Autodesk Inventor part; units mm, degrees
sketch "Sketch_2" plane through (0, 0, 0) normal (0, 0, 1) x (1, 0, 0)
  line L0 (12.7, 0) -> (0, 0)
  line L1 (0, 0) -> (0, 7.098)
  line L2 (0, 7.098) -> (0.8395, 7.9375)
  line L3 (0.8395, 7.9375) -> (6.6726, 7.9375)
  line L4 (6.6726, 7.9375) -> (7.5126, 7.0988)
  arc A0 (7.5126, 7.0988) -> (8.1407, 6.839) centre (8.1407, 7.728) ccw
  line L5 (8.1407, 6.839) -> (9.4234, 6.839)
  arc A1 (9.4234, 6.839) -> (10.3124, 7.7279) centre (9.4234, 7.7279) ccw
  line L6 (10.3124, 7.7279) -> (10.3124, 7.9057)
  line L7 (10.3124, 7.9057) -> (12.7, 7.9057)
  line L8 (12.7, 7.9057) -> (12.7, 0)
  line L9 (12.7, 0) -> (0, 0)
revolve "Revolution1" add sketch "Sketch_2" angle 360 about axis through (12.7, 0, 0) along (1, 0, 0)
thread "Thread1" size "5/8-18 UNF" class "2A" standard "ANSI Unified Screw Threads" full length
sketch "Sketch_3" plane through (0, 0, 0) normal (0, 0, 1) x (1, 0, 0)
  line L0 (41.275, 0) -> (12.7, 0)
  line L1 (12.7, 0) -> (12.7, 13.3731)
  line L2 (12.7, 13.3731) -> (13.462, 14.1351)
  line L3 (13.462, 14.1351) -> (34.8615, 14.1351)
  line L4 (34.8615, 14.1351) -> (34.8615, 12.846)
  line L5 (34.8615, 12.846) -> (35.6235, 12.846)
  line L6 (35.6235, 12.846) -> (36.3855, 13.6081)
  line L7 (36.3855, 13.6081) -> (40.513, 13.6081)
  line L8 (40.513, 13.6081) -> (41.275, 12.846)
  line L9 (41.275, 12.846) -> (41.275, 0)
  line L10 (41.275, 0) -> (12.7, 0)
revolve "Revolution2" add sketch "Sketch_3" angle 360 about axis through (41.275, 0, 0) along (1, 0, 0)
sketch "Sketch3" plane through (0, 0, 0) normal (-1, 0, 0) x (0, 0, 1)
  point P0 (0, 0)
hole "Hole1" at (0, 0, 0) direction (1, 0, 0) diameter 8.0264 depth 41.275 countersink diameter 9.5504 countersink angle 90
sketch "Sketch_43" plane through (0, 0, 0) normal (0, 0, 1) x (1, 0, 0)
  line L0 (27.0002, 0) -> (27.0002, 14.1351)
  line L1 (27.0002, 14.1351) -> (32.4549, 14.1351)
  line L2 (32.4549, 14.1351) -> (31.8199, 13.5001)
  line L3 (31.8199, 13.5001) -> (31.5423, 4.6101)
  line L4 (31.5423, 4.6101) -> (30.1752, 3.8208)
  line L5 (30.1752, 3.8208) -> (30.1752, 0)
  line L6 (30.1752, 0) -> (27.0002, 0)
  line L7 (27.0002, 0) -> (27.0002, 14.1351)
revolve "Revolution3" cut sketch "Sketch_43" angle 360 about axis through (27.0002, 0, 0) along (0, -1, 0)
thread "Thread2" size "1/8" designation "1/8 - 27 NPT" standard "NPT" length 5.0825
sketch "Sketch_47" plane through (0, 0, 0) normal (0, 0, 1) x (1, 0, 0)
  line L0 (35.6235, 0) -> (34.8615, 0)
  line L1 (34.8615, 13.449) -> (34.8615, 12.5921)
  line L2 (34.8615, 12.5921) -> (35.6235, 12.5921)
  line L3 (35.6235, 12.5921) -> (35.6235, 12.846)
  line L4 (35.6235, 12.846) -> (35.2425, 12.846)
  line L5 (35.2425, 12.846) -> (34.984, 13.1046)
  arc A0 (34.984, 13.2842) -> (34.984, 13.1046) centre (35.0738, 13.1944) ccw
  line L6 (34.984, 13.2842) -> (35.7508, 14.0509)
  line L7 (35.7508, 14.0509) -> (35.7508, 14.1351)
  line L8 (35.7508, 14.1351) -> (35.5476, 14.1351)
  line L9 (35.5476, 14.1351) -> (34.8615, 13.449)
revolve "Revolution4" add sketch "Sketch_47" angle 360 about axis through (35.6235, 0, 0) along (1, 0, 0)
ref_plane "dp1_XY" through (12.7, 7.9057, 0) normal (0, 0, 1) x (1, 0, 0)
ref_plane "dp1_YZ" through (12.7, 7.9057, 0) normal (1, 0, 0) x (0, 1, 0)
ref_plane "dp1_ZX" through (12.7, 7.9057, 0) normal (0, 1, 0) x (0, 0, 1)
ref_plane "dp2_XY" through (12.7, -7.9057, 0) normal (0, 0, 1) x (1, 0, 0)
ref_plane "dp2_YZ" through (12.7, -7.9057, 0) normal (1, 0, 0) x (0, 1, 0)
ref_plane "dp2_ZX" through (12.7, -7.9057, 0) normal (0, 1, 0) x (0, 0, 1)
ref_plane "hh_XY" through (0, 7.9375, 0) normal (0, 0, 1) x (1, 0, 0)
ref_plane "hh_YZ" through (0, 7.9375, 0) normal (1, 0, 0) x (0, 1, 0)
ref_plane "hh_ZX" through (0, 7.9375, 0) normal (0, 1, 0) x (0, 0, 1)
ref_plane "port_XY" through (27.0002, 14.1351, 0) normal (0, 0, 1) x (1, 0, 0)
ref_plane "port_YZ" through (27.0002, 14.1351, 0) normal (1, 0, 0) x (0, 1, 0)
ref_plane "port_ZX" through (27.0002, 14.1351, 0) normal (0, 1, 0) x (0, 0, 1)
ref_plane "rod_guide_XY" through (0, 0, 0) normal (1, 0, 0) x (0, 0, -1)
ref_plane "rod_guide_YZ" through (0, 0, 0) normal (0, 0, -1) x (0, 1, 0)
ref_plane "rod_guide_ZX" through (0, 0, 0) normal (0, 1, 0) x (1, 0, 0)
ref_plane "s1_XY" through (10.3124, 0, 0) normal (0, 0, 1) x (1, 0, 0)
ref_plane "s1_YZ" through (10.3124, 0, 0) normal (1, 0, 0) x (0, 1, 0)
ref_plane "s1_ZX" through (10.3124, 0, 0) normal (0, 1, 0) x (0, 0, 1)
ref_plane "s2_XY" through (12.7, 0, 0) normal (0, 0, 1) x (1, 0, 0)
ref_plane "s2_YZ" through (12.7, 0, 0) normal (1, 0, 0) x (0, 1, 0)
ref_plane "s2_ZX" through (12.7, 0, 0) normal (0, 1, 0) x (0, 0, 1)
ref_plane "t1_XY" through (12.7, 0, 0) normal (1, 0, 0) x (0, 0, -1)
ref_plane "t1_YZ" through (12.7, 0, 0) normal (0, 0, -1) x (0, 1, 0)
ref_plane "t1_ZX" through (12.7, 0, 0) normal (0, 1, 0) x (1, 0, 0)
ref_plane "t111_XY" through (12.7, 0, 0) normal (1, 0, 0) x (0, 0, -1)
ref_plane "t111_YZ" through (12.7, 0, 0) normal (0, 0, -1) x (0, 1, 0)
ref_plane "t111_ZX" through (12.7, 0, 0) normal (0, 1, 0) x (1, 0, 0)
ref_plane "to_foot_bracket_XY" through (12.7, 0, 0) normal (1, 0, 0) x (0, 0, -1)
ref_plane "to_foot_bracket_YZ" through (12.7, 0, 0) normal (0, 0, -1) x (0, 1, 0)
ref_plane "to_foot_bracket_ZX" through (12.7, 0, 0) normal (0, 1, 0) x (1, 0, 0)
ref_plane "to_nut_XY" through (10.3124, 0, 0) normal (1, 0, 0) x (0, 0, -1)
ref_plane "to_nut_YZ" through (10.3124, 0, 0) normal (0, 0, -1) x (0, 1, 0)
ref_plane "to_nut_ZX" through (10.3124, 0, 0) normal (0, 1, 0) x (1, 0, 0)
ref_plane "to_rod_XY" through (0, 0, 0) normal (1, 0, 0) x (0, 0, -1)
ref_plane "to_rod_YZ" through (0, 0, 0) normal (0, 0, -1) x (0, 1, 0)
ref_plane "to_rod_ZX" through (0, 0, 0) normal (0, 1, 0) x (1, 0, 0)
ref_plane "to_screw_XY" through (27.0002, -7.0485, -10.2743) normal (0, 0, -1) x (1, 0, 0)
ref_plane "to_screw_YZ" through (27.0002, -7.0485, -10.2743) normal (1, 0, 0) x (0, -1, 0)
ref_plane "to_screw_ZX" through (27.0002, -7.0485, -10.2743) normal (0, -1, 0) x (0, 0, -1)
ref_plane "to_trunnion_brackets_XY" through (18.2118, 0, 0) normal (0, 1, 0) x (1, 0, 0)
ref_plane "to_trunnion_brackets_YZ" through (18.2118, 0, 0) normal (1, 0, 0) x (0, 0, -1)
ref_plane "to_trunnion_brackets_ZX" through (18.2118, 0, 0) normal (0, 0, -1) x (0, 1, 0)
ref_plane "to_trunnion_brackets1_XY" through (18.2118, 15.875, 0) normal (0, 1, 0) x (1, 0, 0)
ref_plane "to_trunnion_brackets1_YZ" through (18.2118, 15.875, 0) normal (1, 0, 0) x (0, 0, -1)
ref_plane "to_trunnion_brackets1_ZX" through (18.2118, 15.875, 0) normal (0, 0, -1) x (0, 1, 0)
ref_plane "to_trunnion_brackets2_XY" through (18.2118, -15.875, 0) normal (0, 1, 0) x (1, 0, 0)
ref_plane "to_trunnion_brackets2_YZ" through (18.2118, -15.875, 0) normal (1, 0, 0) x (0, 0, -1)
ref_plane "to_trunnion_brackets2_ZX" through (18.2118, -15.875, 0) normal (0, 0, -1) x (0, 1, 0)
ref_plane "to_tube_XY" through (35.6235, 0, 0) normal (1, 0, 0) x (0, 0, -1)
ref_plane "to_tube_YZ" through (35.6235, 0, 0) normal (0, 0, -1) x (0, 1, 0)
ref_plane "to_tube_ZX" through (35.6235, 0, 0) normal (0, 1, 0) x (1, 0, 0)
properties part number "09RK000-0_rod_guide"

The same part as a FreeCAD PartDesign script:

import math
import FreeCAD as App
import Part
import Sketcher

V = App.Vector
Q = App.Units.Quantity


def add_polygon(sketch, points):
    """Adds a closed chain of lines whose ends are joined by coincident constraints."""
    first, n = sketch.GeometryCount, len(points)
    for a, b in zip(points, points[1:] + points[:1]):
        sketch.addGeometry(Part.LineSegment(App.Vector(*a, 0), App.Vector(*b, 0)), False)
    for i in range(n):
        sketch.addConstraint(Sketcher.Constraint("Coincident", first + i, 2, first + (i + 1) % n, 1))

doc = App.newDocument("Part")
body = doc.addObject("PartDesign::Body", "Body")

# Sketch on XY plane
sketch1 = body.newObject("Sketcher::SketchObject", "Sketch")
sketch1.AttachmentSupport = (doc.getObject("XY_Plane"), [""])
sketch1.MapMode = "FlatFace"
sketch1.addGeometry([
    Part.LineSegment(V(0, 0, 0), V(12.7, 0, 0)),  # 0
    Part.LineSegment(V(12.7, 0, 0), V(12.7, 7.91, 0)),  # 1
    Part.LineSegment(V(12.7, 7.91, 0), V(10.31, 7.91, 0)),  # 2
    Part.LineSegment(V(10.31, 7.91, 0), V(10.31, 7.73, 0)),  # 3
    Part.ArcOfCircle(Part.Circle(V(9.42, 7.73, 0), V(0, 0, 1), 0.89), math.radians(-90), math.radians(0)),  # 4
    Part.LineSegment(V(9.42, 6.84, 0), V(8.14, 6.84, 0)),  # 5
    Part.ArcOfCircle(Part.Circle(V(8.14, 7.73, 0), V(0, 0, 1), 0.89), math.radians(-135), math.radians(-90)),  # 6
    Part.LineSegment(V(7.51, 7.1, 0), V(6.67, 7.94, 0)),  # 7
    Part.LineSegment(V(6.67, 7.94, 0), V(0.84, 7.94, 0)),  # 8
    Part.LineSegment(V(0.84, 7.94, 0), V(0, 7.1, 0)),  # 9
    Part.LineSegment(V(0, 7.1, 0), V(0, 0, 0)),  # 10
], False)
sketch1.addConstraint([
    Sketcher.Constraint("Coincident", 0, 2, 1, 1),
    Sketcher.Constraint("Coincident", 1, 2, 2, 1),
    Sketcher.Constraint("Coincident", 2, 2, 3, 1),
    Sketcher.Constraint("Tangent", 3, 2, 4, 2),
    Sketcher.Constraint("Tangent", 4, 1, 5, 1),
    Sketcher.Constraint("Tangent", 5, 2, 6, 2),
    Sketcher.Constraint("Tangent", 6, 1, 7, 1),
    Sketcher.Constraint("Coincident", 7, 2, 8, 1),
    Sketcher.Constraint("Coincident", 8, 2, 9, 1),
    Sketcher.Constraint("Coincident", 9, 2, 10, 1),
    Sketcher.Constraint("Coincident", 10, 2, 0, 1),
    Sketcher.Constraint("Horizontal", 0),
    Sketcher.Constraint("Vertical", 1),
    Sketcher.Constraint("Horizontal", 2),
    Sketcher.Constraint("Vertical", 3),
    Sketcher.Constraint("Horizontal", 5),
    Sketcher.Constraint("Horizontal", 8),
    Sketcher.Constraint("Vertical", 10),
    Sketcher.Constraint("Coincident", 10, 2, -1, 1),
    Sketcher.Constraint("Equal", 4, 6),
    Sketcher.Constraint("DistanceX", 0, 1, 0, 2, Q("0.5 in")),
    Sketcher.Constraint("Angle", 9, Q("-135 deg")),
    Sketcher.Constraint("Radius", 4, Q("0.035 in")),
    Sketcher.Constraint("DistanceX", 2, 2, 2, 1, Q("0.094 in")),
    Sketcher.Constraint("DistanceY", 3, 2, 3, 1, Q("0.007 in")),
    Sketcher.Constraint("DistanceX", 5, 2, 5, 1, Q("0.0505 in")),
    Sketcher.Constraint("DistanceY", -1, 1, 7, 2, Q("0.3125 in")),
    Sketcher.Constraint("DistanceX", 8, 2, 8, 1, Q("5.833 mm")),
    Sketcher.Constraint("DistanceY", 1, 1, 1, 2, Q("7.9057 mm")),
    Sketcher.Constraint("DistanceY", 10, 2, 10, 1, Q("7.098 mm")),
])
revolution = body.newObject("PartDesign::Revolution", "Revolution")
revolution.Profile = sketch1
revolution.ReferenceAxis = (sketch1, ["H_Axis"])
revolution.Angle = 360

# Sketch on XY plane
sketch2 = body.newObject("Sketcher::SketchObject", "Sketch001")
sketch2.AttachmentSupport = (doc.getObject("XY_Plane"), [""])
sketch2.MapMode = "FlatFace"
add_polygon(sketch2, [(12.7, 0), (41.3, 0), (41.3, 12.8), (40.5, 13.6), (36.4, 13.6), (35.6, 12.8), (34.9, 12.8), (34.9, 14.1), (13.5, 14.1), (12.7, 13.4)])  # lines 0-9
sketch2.addConstraint([
    Sketcher.Constraint("Horizontal", 0),
    Sketcher.Constraint("Vertical", 1),
    Sketcher.Constraint("Horizontal", 3),
    Sketcher.Constraint("Horizontal", 5),
    Sketcher.Constraint("Vertical", 6),
    Sketcher.Constraint("Horizontal", 7),
    Sketcher.Constraint("Vertical", 9),
    Sketcher.Constraint("PointOnObject", 0, 2, -1),
    Sketcher.Constraint("Perpendicular", 2, 4),
    Sketcher.Constraint("Parallel", 4, 8),
    Sketcher.Constraint("Horizontal", 1, 2, 4, 2),
    Sketcher.Constraint("Equal", 2, 4),
    Sketcher.Constraint("Equal", 4, 8),
    Sketcher.Constraint("DistanceX", 5, 2, 5, 1, Q("0.03 in")),
    Sketcher.Constraint("DistanceX", -1, 1, 8, 2, Q("0.5 in")),
    Sketcher.Constraint("DistanceX", 0, 1, 0, 2, Q("1.125 in")),
    Sketcher.Constraint("DistanceX", -1, 1, 7, 2, Q("0.53 in")),
    Sketcher.Constraint("DistanceX", 3, 2, 3, 1, Q("0.1625 in")),
    Sketcher.Constraint("DistanceY", 9, 2, 9, 1, Q("0.5265 in")),
    Sketcher.Constraint("DistanceY", 1, 1, 1, 2, Q("12.846 mm")),
])
revolution2 = body.newObject("PartDesign::Revolution", "Revolution001")
revolution2.Profile = sketch2
revolution2.ReferenceAxis = (sketch2, ["H_Axis"])
revolution2.Angle = 360

# Sketch on YZ plane
sketch3 = body.newObject("Sketcher::SketchObject", "Sketch002")
sketch3.AttachmentSupport = (doc.getObject("YZ_Plane"), [""])
sketch3.MapMode = "FlatFace"
sketch3.addGeometry(Part.Circle(V(0, 0, 0), V(0, 0, 1), 4), False)
sketch3.addConstraint([
    Sketcher.Constraint("Coincident", 0, 3, -1, 1),
    Sketcher.Constraint("Diameter", 0, Q("0.316 in")),
])
doc.recompute()
hole = body.newObject("PartDesign::Hole", "Hole")
hole.Profile = sketch3
hole.ThreadType = "None"
hole.Diameter = Q("0.316 in")
hole.DepthType = "Dimension"
hole.Depth = Q("1.625 in")
hole.DrillPoint = "Flat"
hole.HoleCutType = "Countersink"
hole.HoleCutDiameter = Q("0.376 in")
hole.HoleCutCountersinkAngle = 90
hole.Reversed = True

# Sketch on XY plane
sketch4 = body.newObject("Sketcher::SketchObject", "Sketch003")
sketch4.AttachmentSupport = (doc.getObject("XY_Plane"), [""])
sketch4.MapMode = "FlatFace"
add_polygon(sketch4, [(27, 14.1), (27, 0), (30.2, 0), (30.2, 3.8), (31.5, 4.6), (31.8, 13.5), (32.5, 14.1)])  # lines 0-6
sketch4.addGeometry(Part.LineSegment(V(27, 14.1, 0), V(27, 0, 0)), True)  # axis
sketch4.addConstraint([
    Sketcher.Constraint("Vertical", 0),
    Sketcher.Constraint("Horizontal", 1),
    Sketcher.Constraint("Vertical", 2),
    Sketcher.Constraint("Horizontal", 6),
    Sketcher.Constraint("Vertical", 7),
    Sketcher.Constraint("Coincident", 7, 1, 6, 2),
    Sketcher.Constraint("PointOnObject", 0, 2, -1),
    Sketcher.Constraint("PointOnObject", 7, 2, -1),
    Sketcher.Constraint("Angle", 3, Q("30.0001 deg")),
    Sketcher.Constraint("Angle", 5, Q("45 deg")),
    Sketcher.Constraint("DistanceX", 1, 1, 1, 2, Q("0.125 in")),
    Sketcher.Constraint("DistanceY", 3, 2, 4, 2, Q("0.35 in")),
    Sketcher.Constraint("DistanceY", 0, 2, 0, 1, Q("0.5565 in")),
    Sketcher.Constraint("DistanceX", -1, 1, 0, 2, Q("1.063 in")),
    Sketcher.Constraint("DistanceX", 4, 2, 5, 2, Q("0.025 in")),
    Sketcher.Constraint("DistanceX", 6, 2, 6, 1, Q("5.4547 mm")),
    Sketcher.Constraint("DistanceY", 2, 1, 2, 2, Q("3.8208 mm")),
])
groove = body.newObject("PartDesign::Groove", "Groove")
groove.Profile = sketch4
groove.ReferenceAxis = (sketch4, ["Axis0"])
groove.Angle = 360

# Sketch on XY plane
sketch5 = body.newObject("Sketcher::SketchObject", "Sketch004")
sketch5.AttachmentSupport = (doc.getObject("XY_Plane"), [""])
sketch5.MapMode = "FlatFace"
sketch5.addGeometry([
    Part.LineSegment(V(35.55, 14.14, 0), V(34.86, 13.45, 0)),  # 0
    Part.LineSegment(V(34.86, 13.45, 0), V(34.86, 12.59, 0)),  # 1
    Part.LineSegment(V(34.86, 12.59, 0), V(35.62, 12.59, 0)),  # 2
    Part.LineSegment(V(35.62, 12.59, 0), V(35.62, 12.85, 0)),  # 3
    Part.LineSegment(V(35.62, 12.85, 0), V(35.24, 12.85, 0)),  # 4
    Part.LineSegment(V(35.24, 12.85, 0), V(34.98, 13.1, 0)),  # 5
    Part.ArcOfCircle(Part.Circle(V(35.07, 13.19, 0), V(0, 0, 1), 0.13), math.radians(135), math.radians(225)),  # 6
    Part.LineSegment(V(34.98, 13.28, 0), V(35.75, 14.05, 0)),  # 7
    Part.LineSegment(V(35.75, 14.05, 0), V(35.75, 14.14, 0)),  # 8
    Part.LineSegment(V(35.75, 14.14, 0), V(35.55, 14.14, 0)),  # 9
], False)
sketch5.addConstraint([
    Sketcher.Constraint("Coincident", 0, 2, 1, 1),
    Sketcher.Constraint("Coincident", 1, 2, 2, 1),
    Sketcher.Constraint("Coincident", 2, 2, 3, 1),
    Sketcher.Constraint("Coincident", 3, 2, 4, 1),
    Sketcher.Constraint("Coincident", 4, 2, 5, 1),
    Sketcher.Constraint("Tangent", 5, 2, 6, 2),
    Sketcher.Constraint("Tangent", 6, 1, 7, 1),
    Sketcher.Constraint("Coincident", 7, 2, 8, 1),
    Sketcher.Constraint("Coincident", 8, 2, 9, 1),
    Sketcher.Constraint("Coincident", 9, 2, 0, 1),
    Sketcher.Constraint("Vertical", 1),
    Sketcher.Constraint("Horizontal", 2),
    Sketcher.Constraint("Vertical", 3),
    Sketcher.Constraint("Horizontal", 4),
    Sketcher.Constraint("Vertical", 8),
    Sketcher.Constraint("Horizontal", 9),
    Sketcher.Constraint("Perpendicular", 0, 5),
    Sketcher.Constraint("Perpendicular", 5, 7),
    Sketcher.Constraint("Vertical", 5, 2, 6, 1),
    Sketcher.Constraint("Radius", 6, Q("0.005 in")),
    Sketcher.Constraint("DistanceX", 2, 1, 2, 2, Q("0.03 in")),
    Sketcher.Constraint("DistanceY", 3, 1, 3, 2, Q("0.01 in")),
    Sketcher.Constraint("DistanceX", 4, 2, 4, 1, Q("0.015 in")),
    Sketcher.Constraint("DistanceX", 9, 2, 9, 1, Q("0.008 in")),
    Sketcher.Constraint("DistanceY", -1, 1, 6, 1, Q("0.523 in")),
    Sketcher.Constraint("DistanceX", 0, 2, 7, 2, Q("0.035 in")),
    Sketcher.Constraint("Distance", 5, Q("0.0144 in")),
    Sketcher.Constraint("DistanceY", 1, 2, 1, 1, Q("0.857 mm")),
    Sketcher.Constraint("DistanceX", -1, 1, 0, 2, Q("1.3725 in")),
])
revolution3 = body.newObject("PartDesign::Revolution", "Revolution002")
revolution3.Profile = sketch5
revolution3.ReferenceAxis = (sketch5, ["H_Axis"])
revolution3.Angle = 360

doc.recompute()
